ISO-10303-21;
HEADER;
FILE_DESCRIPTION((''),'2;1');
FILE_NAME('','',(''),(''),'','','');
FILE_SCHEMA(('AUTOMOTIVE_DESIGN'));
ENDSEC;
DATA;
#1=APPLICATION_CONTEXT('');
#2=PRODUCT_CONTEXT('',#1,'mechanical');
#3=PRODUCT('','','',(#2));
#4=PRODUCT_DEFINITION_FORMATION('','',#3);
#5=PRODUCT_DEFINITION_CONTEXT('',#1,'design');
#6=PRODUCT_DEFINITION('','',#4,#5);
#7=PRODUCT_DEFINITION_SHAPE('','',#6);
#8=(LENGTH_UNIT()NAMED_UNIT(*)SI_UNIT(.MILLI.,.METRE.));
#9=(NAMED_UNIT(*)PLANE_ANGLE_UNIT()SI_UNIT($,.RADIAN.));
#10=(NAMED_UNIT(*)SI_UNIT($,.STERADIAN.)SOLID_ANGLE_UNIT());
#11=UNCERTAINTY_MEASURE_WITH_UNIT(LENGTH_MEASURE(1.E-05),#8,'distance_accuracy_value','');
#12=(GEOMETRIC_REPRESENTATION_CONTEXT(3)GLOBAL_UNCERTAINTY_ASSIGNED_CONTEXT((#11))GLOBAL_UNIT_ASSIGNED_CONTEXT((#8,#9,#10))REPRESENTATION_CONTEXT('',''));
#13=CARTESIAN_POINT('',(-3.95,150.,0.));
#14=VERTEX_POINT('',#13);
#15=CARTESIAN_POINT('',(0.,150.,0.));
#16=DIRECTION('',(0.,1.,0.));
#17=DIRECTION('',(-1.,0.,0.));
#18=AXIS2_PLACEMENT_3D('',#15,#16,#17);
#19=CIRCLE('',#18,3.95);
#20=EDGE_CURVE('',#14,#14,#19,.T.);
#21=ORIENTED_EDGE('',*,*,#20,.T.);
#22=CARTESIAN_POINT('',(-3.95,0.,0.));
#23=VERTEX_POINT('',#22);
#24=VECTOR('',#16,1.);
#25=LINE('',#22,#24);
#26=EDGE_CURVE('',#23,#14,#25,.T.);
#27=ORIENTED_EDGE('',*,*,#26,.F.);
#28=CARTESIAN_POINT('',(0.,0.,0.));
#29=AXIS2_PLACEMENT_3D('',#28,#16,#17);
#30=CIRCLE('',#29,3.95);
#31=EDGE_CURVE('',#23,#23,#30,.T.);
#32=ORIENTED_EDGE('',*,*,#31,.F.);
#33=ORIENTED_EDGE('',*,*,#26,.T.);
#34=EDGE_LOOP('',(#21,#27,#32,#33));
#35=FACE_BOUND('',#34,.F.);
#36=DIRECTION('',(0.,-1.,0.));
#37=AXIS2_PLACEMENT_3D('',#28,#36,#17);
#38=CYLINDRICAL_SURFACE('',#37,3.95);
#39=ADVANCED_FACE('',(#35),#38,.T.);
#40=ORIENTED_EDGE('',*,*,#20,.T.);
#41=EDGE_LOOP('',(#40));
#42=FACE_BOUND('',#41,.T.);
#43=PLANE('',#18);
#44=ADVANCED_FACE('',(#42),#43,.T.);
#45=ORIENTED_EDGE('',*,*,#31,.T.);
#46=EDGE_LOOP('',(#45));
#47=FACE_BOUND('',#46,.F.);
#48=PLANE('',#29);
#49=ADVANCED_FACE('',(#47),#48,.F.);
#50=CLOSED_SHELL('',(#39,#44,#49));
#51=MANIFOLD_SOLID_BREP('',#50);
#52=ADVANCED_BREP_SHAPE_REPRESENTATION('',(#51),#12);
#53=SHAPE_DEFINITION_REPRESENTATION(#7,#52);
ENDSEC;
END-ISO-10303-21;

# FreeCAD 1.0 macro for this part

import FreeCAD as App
import Part
import Sketcher
from FreeCAD import Vector
Q = App.Units.Quantity

doc = App.newDocument("Part")
body = doc.addObject("PartDesign::Body", "Body")

sketch1 = doc.addObject("Sketcher::SketchObject", "Sketch")
body.addObject(sketch1)
sketch1.AttachmentSupport = (doc.XZ_Plane, [""])
sketch1.MapMode = "FlatFace"
sketch1.addGeometry(Part.Circle(Vector(0, 0, 0), Vector(0, 0, 1), 3.95), False)
sketch1.addConstraint([
    Sketcher.Constraint("Coincident", 0, 3, -1, 1),
    Sketcher.Constraint("Diameter", 0, Q("7.9 mm")),
])
pad1 = doc.addObject("PartDesign::Pad", "Pad")
body.addObject(pad1)
pad1.Profile = sketch1
pad1.Length = 150
pad1.Reversed = True

doc.recompute()
